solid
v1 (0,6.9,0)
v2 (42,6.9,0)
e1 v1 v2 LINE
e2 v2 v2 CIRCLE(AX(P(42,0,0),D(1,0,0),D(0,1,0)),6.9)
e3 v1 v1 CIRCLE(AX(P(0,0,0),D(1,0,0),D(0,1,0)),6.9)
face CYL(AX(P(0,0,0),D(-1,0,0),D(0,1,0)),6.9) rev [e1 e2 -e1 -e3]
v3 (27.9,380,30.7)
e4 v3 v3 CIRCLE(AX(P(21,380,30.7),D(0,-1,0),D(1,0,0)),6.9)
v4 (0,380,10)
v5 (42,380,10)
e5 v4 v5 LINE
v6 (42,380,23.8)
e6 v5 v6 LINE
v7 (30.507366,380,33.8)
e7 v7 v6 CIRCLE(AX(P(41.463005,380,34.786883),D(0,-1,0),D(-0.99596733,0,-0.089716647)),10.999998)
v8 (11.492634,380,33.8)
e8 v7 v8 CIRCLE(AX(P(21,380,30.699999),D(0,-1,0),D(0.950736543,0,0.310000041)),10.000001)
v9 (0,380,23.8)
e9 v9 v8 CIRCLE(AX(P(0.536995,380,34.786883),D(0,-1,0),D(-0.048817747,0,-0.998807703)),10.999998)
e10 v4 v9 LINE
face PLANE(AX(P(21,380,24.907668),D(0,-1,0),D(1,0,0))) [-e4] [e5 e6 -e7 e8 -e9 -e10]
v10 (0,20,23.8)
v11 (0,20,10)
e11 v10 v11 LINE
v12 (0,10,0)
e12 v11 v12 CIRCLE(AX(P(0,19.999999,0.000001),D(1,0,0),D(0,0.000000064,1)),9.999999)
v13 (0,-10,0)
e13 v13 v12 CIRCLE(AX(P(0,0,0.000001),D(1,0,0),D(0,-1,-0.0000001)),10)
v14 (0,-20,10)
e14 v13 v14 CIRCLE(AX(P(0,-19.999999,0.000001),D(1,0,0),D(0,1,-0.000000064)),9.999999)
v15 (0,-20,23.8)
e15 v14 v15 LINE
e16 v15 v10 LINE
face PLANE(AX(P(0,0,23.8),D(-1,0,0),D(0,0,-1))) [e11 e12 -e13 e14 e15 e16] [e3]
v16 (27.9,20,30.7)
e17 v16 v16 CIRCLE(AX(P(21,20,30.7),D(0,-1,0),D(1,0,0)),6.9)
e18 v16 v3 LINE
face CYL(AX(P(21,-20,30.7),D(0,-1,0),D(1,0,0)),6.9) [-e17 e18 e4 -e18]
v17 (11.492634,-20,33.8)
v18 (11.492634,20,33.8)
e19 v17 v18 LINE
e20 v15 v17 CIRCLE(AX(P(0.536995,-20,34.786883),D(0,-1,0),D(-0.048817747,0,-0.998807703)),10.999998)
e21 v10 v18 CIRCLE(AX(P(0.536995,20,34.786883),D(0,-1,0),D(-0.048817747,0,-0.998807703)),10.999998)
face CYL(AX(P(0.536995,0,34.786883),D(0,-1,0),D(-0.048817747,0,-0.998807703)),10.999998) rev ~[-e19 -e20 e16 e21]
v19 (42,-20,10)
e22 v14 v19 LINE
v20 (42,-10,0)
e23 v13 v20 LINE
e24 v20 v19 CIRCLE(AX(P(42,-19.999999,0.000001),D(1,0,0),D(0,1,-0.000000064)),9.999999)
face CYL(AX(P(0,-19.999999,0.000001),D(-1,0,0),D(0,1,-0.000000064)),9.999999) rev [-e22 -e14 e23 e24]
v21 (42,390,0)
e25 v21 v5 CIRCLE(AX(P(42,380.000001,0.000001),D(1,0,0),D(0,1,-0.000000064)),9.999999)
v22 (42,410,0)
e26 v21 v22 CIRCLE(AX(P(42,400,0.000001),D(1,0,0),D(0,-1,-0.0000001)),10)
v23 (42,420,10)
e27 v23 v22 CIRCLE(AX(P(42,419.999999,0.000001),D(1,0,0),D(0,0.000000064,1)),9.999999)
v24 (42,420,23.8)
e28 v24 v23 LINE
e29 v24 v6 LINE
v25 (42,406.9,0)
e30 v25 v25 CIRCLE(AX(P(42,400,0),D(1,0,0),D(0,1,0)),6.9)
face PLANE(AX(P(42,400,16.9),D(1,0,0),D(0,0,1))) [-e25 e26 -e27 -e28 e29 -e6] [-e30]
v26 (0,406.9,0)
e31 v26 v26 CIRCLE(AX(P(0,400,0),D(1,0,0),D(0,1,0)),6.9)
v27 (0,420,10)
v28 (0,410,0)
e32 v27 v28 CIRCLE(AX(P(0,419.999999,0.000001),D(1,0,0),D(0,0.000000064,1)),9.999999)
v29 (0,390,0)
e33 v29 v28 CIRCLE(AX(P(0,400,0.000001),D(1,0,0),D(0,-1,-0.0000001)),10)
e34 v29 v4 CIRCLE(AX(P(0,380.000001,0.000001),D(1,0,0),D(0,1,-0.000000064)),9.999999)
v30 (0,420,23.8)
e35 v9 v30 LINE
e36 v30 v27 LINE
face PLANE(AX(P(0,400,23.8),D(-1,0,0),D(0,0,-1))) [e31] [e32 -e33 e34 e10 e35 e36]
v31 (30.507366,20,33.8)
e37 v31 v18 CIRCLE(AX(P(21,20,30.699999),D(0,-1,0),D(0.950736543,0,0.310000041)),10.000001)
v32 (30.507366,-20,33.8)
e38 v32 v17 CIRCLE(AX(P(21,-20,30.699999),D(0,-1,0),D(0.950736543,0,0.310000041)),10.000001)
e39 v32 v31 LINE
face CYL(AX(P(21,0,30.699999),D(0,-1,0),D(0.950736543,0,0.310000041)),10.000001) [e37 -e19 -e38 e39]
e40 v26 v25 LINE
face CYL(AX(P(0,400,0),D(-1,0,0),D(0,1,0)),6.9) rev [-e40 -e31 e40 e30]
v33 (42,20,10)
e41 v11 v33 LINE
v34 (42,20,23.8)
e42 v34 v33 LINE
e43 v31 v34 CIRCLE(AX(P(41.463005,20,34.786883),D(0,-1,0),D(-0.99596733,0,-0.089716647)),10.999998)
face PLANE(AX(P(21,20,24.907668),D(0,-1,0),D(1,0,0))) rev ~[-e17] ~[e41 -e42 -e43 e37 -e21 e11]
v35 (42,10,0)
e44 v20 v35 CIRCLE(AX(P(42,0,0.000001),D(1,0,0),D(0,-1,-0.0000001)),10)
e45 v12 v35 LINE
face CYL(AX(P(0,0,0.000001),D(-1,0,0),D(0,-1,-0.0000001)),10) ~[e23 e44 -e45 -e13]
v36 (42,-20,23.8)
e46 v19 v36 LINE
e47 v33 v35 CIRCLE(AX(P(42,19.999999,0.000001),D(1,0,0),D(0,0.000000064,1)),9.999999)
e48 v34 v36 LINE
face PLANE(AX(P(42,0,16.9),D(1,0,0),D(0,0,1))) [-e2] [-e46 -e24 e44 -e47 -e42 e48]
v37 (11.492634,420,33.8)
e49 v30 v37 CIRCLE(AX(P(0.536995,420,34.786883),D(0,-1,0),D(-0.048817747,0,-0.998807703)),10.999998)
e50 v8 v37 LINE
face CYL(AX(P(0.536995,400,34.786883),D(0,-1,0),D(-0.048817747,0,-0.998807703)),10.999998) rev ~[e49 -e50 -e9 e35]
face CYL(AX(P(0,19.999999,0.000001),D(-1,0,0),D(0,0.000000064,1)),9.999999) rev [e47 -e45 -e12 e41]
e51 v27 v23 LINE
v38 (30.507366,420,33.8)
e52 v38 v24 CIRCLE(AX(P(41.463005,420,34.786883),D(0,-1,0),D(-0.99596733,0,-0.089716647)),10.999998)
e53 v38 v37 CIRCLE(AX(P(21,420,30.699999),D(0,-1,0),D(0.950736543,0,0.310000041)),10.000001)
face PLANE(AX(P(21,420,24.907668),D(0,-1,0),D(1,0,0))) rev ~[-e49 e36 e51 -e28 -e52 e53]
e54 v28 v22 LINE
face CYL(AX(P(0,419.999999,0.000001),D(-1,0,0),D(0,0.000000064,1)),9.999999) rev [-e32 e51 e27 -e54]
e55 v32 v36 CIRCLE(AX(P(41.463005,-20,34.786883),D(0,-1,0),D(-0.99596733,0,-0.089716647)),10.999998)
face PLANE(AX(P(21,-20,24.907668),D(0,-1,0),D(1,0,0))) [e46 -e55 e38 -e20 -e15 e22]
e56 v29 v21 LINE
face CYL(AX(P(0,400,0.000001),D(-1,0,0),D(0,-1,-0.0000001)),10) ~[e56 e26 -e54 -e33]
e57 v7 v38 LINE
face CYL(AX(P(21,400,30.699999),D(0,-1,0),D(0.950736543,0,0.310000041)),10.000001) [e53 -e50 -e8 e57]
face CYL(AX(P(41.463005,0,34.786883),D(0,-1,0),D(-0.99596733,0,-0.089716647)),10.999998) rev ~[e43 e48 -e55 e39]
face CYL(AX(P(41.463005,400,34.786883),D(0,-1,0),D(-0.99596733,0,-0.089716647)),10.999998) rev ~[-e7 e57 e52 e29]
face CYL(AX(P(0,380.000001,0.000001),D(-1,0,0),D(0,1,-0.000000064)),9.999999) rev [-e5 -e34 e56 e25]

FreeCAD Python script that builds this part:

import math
import FreeCAD as App
import Part
import Sketcher

V = App.Vector
Q = App.Units.Quantity

doc = App.newDocument("Part")
body = doc.addObject("PartDesign::Body", "Body")

sketch1 = body.newObject("Sketcher::SketchObject", "Sketch")
sketch1.AttachmentSupport = (doc.getObject("YZ_Plane"), [""])
sketch1.MapMode = "FlatFace"
sketch1.addGeometry([
    Part.LineSegment(V(20, 17, 0), V(-20, 17, 0)),
    Part.LineSegment(V(-20, 17, 0), V(-20, 10, 0)),
    Part.ArcOfCircle(Part.Circle(V(-20, 0, 0), V(0, 0, 1), 10), math.radians(0), math.radians(90)),
    Part.ArcOfCircle(Part.Circle(V(0, 0, 0), V(0, 0, 1), 10), math.radians(-180), math.radians(0)),
    Part.ArcOfCircle(Part.Circle(V(20, 0, 0), V(0, 0, 1), 10), math.radians(90), math.radians(180)),
    Part.LineSegment(V(20, 10, 0), V(20, 17, 0)),
    Part.Circle(V(0, 0, 0), V(0, 0, 1), 7),
], False)
sketch1.addConstraint([
    Sketcher.Constraint("Coincident", 0, 2, 1, 1),
    Sketcher.Constraint("Coincident", 1, 2, 2, 2),
    Sketcher.Constraint("Tangent", 2, 1, 3, 1),
    Sketcher.Constraint("Tangent", 3, 2, 4, 2),
    Sketcher.Constraint("Coincident", 4, 1, 5, 1),
    Sketcher.Constraint("Coincident", 5, 2, 0, 1),
    Sketcher.Constraint("Horizontal", 0),
    Sketcher.Constraint("Vertical", 1),
    Sketcher.Constraint("Vertical", 5),
    Sketcher.Constraint("Coincident", 3, 3, -1, 1),
    Sketcher.Constraint("Coincident", 6, 3, -1, 1),
    Sketcher.Constraint("Equal", 2, 3),
    Sketcher.Constraint("Equal", 3, 4),
    Sketcher.Constraint("Symmetric", 1, 2, 4, 1, -2),
    Sketcher.Constraint("PointOnObject", 2, 3, -1),
    Sketcher.Constraint("Vertical", 2, 3, 0, 2),
    Sketcher.Constraint("Radius", 2, Q("9.999999 mm")),
    Sketcher.Constraint("Diameter", 6, Q("13.8 mm")),
    Sketcher.Constraint("DistanceY", 1, 2, 1, 1, Q("6.9 mm")),
])
pad1 = body.newObject("PartDesign::Pad", "Pad")
pad1.Profile = sketch1
pad1.Length = 42
body2 = doc.addObject("PartDesign::Body", "Body001")

sketch2 = body2.newObject("Sketcher::SketchObject", "Sketch001")
sketch2.AttachmentSupport = (doc.getObject("YZ_Plane001"), [""])
sketch2.MapMode = "FlatFace"
sketch2.addGeometry([
    Part.LineSegment(V(420, 17, 0), V(380, 17, 0)),
    Part.LineSegment(V(380, 17, 0), V(380, 10, 0)),
    Part.ArcOfCircle(Part.Circle(V(380, 0, 0), V(0, 0, 1), 10), math.radians(0), math.radians(90)),
    Part.ArcOfCircle(Part.Circle(V(400, 0, 0), V(0, 0, 1), 10), math.radians(-180), math.radians(0)),
    Part.ArcOfCircle(Part.Circle(V(420, 0, 0), V(0, 0, 1), 10), math.radians(90), math.radians(180)),
    Part.LineSegment(V(420, 10, 0), V(420, 17, 0)),
    Part.Circle(V(400, 0, 0), V(0, 0, 1), 7),
], False)
sketch2.addConstraint([
    Sketcher.Constraint("Coincident", 0, 2, 1, 1),
    Sketcher.Constraint("Coincident", 1, 2, 2, 2),
    Sketcher.Constraint("Tangent", 2, 1, 3, 1),
    Sketcher.Constraint("Tangent", 3, 2, 4, 2),
    Sketcher.Constraint("Coincident", 4, 1, 5, 1),
    Sketcher.Constraint("Coincident", 5, 2, 0, 1),
    Sketcher.Constraint("Horizontal", 0),
    Sketcher.Constraint("Vertical", 1),
    Sketcher.Constraint("Vertical", 5),
    Sketcher.Constraint("Coincident", 6, 3, 3, 3),
    Sketcher.Constraint("Equal", 2, 3),
    Sketcher.Constraint("Equal", 3, 4),
    Sketcher.Constraint("PointOnObject", 2, 3, -1),
    Sketcher.Constraint("PointOnObject", 3, 3, -1),
    Sketcher.Constraint("PointOnObject", 4, 3, -1),
    Sketcher.Constraint("Vertical", 2, 3, 0, 2),
    Sketcher.Constraint("Radius", 2, Q("9.999999 mm")),
    Sketcher.Constraint("Diameter", 6, Q("13.8 mm")),
    Sketcher.Constraint("DistanceX", 0, 2, 0, 1, Q("40 mm")),
    Sketcher.Constraint("DistanceY", 1, 2, 1, 1, Q("6.9 mm")),
    Sketcher.Constraint("DistanceX", -1, 1, 2, 3, Q("380.000001 mm")),
])
pad2 = body2.newObject("PartDesign::Pad", "Pad001")
pad2.Profile = sketch2
pad2.Length = 42
body3 = doc.addObject("PartDesign::Body", "Body002")

sketch3 = body3.newObject("Sketcher::SketchObject", "Sketch002")
sketch3.AttachmentSupport = (doc.getObject("XZ_Plane002"), [""])
sketch3.MapMode = "FlatFace"
sketch3.addGeometry([
    Part.LineSegment(V(0, 24, 0), V(0, 17, 0)),
    Part.LineSegment(V(0, 17, 0), V(42, 17, 0)),
    Part.LineSegment(V(42, 17, 0), V(42, 24, 0)),
    Part.ArcOfCircle(Part.Circle(V(41, 35, 0), V(0, 0, 1), 11), math.radians(-175), math.radians(-87)),
    Part.ArcOfCircle(Part.Circle(V(21, 31, 0), V(0, 0, 1), 10), math.radians(18), math.radians(162)),
    Part.ArcOfCircle(Part.Circle(V(1, 35, 0), V(0, 0, 1), 11), math.radians(-93), math.radians(-5)),
    Part.Circle(V(21, 31, 0), V(0, 0, 1), 7),
], False)
sketch3.addConstraint([
    Sketcher.Constraint("Coincident", 0, 2, 1, 1),
    Sketcher.Constraint("Coincident", 1, 2, 2, 1),
    Sketcher.Constraint("Coincident", 2, 2, 3, 2),
    Sketcher.Constraint("Coincident", 3, 1, 4, 1),
    Sketcher.Constraint("Coincident", 4, 2, 5, 2),
    Sketcher.Constraint("Coincident", 5, 1, 0, 1),
    Sketcher.Constraint("Vertical", 0),
    Sketcher.Constraint("Horizontal", 1),
    Sketcher.Constraint("Vertical", 2),
    Sketcher.Constraint("Coincident", 6, 3, 4, 3),
    Sketcher.Constraint("Equal", 3, 5),
    Sketcher.Constraint("PointOnObject", 0, 2, -2),
    Sketcher.Constraint("Horizontal", 3, 3, 5, 3),
    Sketcher.Constraint("Horizontal", 3, 1, 4, 2),
    Sketcher.Constraint("Horizontal", 2, 2, 5, 1),
    Sketcher.Constraint("Radius", 3, Q("10.999998 mm")),
    Sketcher.Constraint("Radius", 4, Q("10.000001 mm")),
    Sketcher.Constraint("Diameter", 6, Q("13.8 mm")),
    Sketcher.Constraint("DistanceX", 1, 1, 1, 2, Q("42 mm")),
    Sketcher.Constraint("DistanceY", 0, 2, 0, 1, Q("6.9 mm")),
    Sketcher.Constraint("DistanceY", 2, 2, 3, 1, Q("10 mm")),
    Sketcher.Constraint("DistanceY", -1, 1, 4, 3, Q("30.699999 mm")),
    Sketcher.Constraint("DistanceY", -1, 1, 0, 2, Q("16.9 mm")),
])
pad3 = body3.newObject("PartDesign::Pad", "Pad002")
pad3.Profile = sketch3
pad3.Length = 40
pad3.Midplane = True
body4 = doc.addObject("PartDesign::Body", "Body003")

sketch4 = body4.newObject("Sketcher::SketchObject", "Sketch003")
sketch4.AttachmentSupport = (doc.getObject("XZ_Plane003"), [""])
sketch4.MapMode = "FlatFace"
sketch4.AttachmentOffset = App.Placement(V(0, 0, -400), App.Rotation())
sketch4.addGeometry([
    Part.LineSegment(V(0, 24, 0), V(0, 17, 0)),
    Part.LineSegment(V(0, 17, 0), V(42, 17, 0)),
    Part.LineSegment(V(42, 17, 0), V(42, 24, 0)),
    Part.ArcOfCircle(Part.Circle(V(41, 35, 0), V(0, 0, 1), 11), math.radians(-175), math.radians(-87)),
    Part.ArcOfCircle(Part.Circle(V(21, 31, 0), V(0, 0, 1), 10), math.radians(18), math.radians(162)),
    Part.ArcOfCircle(Part.Circle(V(1, 35, 0), V(0, 0, 1), 11), math.radians(-93), math.radians(-5)),
    Part.Circle(V(21, 31, 0), V(0, 0, 1), 7),
], False)
sketch4.addConstraint([
    Sketcher.Constraint("Coincident", 0, 2, 1, 1),
    Sketcher.Constraint("Coincident", 1, 2, 2, 1),
    Sketcher.Constraint("Coincident", 2, 2, 3, 2),
    Sketcher.Constraint("Coincident", 3, 1, 4, 1),
    Sketcher.Constraint("Coincident", 4, 2, 5, 2),
    Sketcher.Constraint("Coincident", 5, 1, 0, 1),
    Sketcher.Constraint("Vertical", 0),
    Sketcher.Constraint("Horizontal", 1),
    Sketcher.Constraint("Vertical", 2),
    Sketcher.Constraint("Coincident", 6, 3, 4, 3),
    Sketcher.Constraint("Equal", 3, 5),
    Sketcher.Constraint("PointOnObject", 0, 2, -2),
    Sketcher.Constraint("Horizontal", 3, 3, 5, 3),
    Sketcher.Constraint("Horizontal", 3, 1, 4, 2),
    Sketcher.Constraint("Horizontal", 2, 2, 5, 1),
    Sketcher.Constraint("Radius", 3, Q("10.999998 mm")),
    Sketcher.Constraint("Radius", 4, Q("10.000001 mm")),
    Sketcher.Constraint("Diameter", 6, Q("13.8 mm")),
    Sketcher.Constraint("DistanceX", 1, 1, 1, 2, Q("42 mm")),
    Sketcher.Constraint("DistanceY", 0, 2, 0, 1, Q("6.9 mm")),
    Sketcher.Constraint("DistanceY", 2, 2, 3, 1, Q("10 mm")),
    Sketcher.Constraint("DistanceY", -1, 1, 4, 3, Q("30.699999 mm")),
    Sketcher.Constraint("DistanceY", -1, 1, 0, 2, Q("16.9 mm")),
])
pad4 = body4.newObject("PartDesign::Pad", "Pad003")
pad4.Profile = sketch4
pad4.Length = 40
pad4.Midplane = True
body5 = doc.addObject("PartDesign::Body", "Body004")
body5.AllowCompound = True

sketch5 = body5.newObject("Sketcher::SketchObject", "Sketch004")
sketch5.AttachmentSupport = (doc.getObject("XZ_Plane004"), [""])
sketch5.MapMode = "FlatFace"
sketch5.AttachmentOffset = App.Placement(V(0, 0, 20), App.Rotation())
sketch5.addGeometry(Part.Circle(V(21, 31, 0), V(0, 0, 1), 7), False)
sketch5.addConstraint([
    Sketcher.Constraint("Diameter", 0, Q("13.8 mm")),
    Sketcher.Constraint("DistanceX", -1, 1, 0, 3, Q("21 mm")),
    Sketcher.Constraint("DistanceY", -1, 1, 0, 3, Q("30.7 mm")),
])
pad5 = body5.newObject("PartDesign::Pad", "Pad004")
pad5.Profile = sketch5
pad5.Length = 440
pad5.Reversed = True
doc.recompute()

boolean = body5.newObject("PartDesign::Boolean", "Boolean")
boolean.Type = "Fuse"
boolean.addObjects([body])
doc.recompute()

boolean2 = body5.newObject("PartDesign::Boolean", "Boolean001")
boolean2.Type = "Fuse"
boolean2.addObjects([body2])
doc.recompute()

boolean3 = body5.newObject("PartDesign::Boolean", "Boolean002")
boolean3.Type = "Fuse"
boolean3.addObjects([body3])
doc.recompute()

boolean4 = body5.newObject("PartDesign::Boolean", "Boolean003")
boolean4.Type = "Fuse"
boolean4.addObjects([body4])

doc.recompute()
